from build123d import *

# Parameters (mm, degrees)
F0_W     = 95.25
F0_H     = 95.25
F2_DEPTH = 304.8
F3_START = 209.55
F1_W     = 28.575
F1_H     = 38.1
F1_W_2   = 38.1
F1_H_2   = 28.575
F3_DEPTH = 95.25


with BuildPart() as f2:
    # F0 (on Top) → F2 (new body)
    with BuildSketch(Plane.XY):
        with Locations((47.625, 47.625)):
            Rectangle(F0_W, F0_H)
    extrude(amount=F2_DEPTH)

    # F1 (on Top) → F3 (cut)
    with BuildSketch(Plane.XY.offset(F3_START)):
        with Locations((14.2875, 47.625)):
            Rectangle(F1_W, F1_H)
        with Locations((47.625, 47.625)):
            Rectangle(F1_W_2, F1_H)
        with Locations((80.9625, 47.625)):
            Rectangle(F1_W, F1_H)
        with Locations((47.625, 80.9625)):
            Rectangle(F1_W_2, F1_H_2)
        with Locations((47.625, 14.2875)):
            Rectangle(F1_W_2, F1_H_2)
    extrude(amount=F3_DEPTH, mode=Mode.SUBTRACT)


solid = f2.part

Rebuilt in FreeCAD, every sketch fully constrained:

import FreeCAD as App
import Part
import Sketcher
from FreeCAD import Vector
Q = App.Units.Quantity


def add_polygon(sketch, points):
    """Adds a closed chain of lines whose ends are joined by coincident constraints."""
    first, n = sketch.GeometryCount, len(points)
    for a, b in zip(points, points[1:] + points[:1]):
        sketch.addGeometry(Part.LineSegment(App.Vector(*a, 0), App.Vector(*b, 0)), False)
    for i in range(n):
        sketch.addConstraint(Sketcher.Constraint("Coincident", first + i, 2, first + (i + 1) % n, 1))

doc = App.newDocument("Part")
body = doc.addObject("PartDesign::Body", "Body")

# Sketch on XY plane
sketch1 = body.newObject("Sketcher::SketchObject", "Sketch")
sketch1.AttachmentSupport = (doc.getObject("XY_Plane"), [""])
sketch1.MapMode = "FlatFace"
add_polygon(sketch1, [(0, 95.25), (0, 0), (95.25, 0), (95.25, 95.25)])  # lines 0-3
sketch1.addConstraint([
    Sketcher.Constraint("Vertical", 0),
    Sketcher.Constraint("Horizontal", 1),
    Sketcher.Constraint("Vertical", 2),
    Sketcher.Constraint("Horizontal", 3),
    Sketcher.Constraint("Coincident", 0, 2, -1, 1),
    Sketcher.Constraint("Equal", 3, 0),
    Sketcher.Constraint("DistanceX", 1, 1, 1, 2, Q("3.75 in")),
])
pad1 = body.newObject("PartDesign::Pad", "Pad")
pad1.Profile = sketch1
pad1.Length = Q("12 in")

# Sketch on XY plane
sketch2 = body.newObject("Sketcher::SketchObject", "Sketch001")
sketch2.AttachmentSupport = (doc.getObject("XY_Plane"), [""])
sketch2.MapMode = "FlatFace"
sketch2.AttachmentOffset = App.Placement(Vector(0, 0, 8.25 * 25.4), App.Rotation())
add_polygon(sketch2, [(0, 66.675), (0, 28.575), (28.575, 28.575), (28.575, 0), (66.675, 0), (66.675, 28.575), (95.25, 28.575), (95.25, 66.675), (66.675, 66.675), (66.675, 95.25), (28.575, 95.25), (28.575, 66.675)])  # lines 0-11
sketch2.addConstraint([
    Sketcher.Constraint("Vertical", 0),
    Sketcher.Constraint("Horizontal", 1),
    Sketcher.Constraint("Vertical", 2),
    Sketcher.Constraint("Horizontal", 3),
    Sketcher.Constraint("Vertical", 4),
    Sketcher.Constraint("Horizontal", 5),
    Sketcher.Constraint("Vertical", 6),
    Sketcher.Constraint("Horizontal", 7),
    Sketcher.Constraint("Vertical", 8),
    Sketcher.Constraint("Horizontal", 9),
    Sketcher.Constraint("Vertical", 10),
    Sketcher.Constraint("Horizontal", 11),
    Sketcher.Constraint("PointOnObject", 0, 2, -2),
    Sketcher.Constraint("PointOnObject", 2, 2, -1),
    Sketcher.Constraint("Horizontal", 1, 2, 4, 2),
    Sketcher.Constraint("Horizontal", 7, 2, 10, 2),
    Sketcher.Constraint("Vertical", 4, 2, 7, 2),
    Sketcher.Constraint("Vertical", 2, 2, 9, 2),
    Sketcher.Constraint("Equal", 1, 5),
    Sketcher.Constraint("Equal", 9, 0),
    Sketcher.Constraint("Equal", 11, 2),
    Sketcher.Constraint("Equal", 4, 8),
    Sketcher.Constraint("DistanceX", 3, 1, 3, 2, Q("1.5 in")),
    Sketcher.Constraint("DistanceX", 1, 1, 1, 2, Q("1.125 in")),
])
pocket1 = body.newObject("PartDesign::Pocket", "Pocket")
pocket1.Profile = sketch2
pocket1.Length = Q("3.75 in")
pocket1.Reversed = True

doc.recompute()
